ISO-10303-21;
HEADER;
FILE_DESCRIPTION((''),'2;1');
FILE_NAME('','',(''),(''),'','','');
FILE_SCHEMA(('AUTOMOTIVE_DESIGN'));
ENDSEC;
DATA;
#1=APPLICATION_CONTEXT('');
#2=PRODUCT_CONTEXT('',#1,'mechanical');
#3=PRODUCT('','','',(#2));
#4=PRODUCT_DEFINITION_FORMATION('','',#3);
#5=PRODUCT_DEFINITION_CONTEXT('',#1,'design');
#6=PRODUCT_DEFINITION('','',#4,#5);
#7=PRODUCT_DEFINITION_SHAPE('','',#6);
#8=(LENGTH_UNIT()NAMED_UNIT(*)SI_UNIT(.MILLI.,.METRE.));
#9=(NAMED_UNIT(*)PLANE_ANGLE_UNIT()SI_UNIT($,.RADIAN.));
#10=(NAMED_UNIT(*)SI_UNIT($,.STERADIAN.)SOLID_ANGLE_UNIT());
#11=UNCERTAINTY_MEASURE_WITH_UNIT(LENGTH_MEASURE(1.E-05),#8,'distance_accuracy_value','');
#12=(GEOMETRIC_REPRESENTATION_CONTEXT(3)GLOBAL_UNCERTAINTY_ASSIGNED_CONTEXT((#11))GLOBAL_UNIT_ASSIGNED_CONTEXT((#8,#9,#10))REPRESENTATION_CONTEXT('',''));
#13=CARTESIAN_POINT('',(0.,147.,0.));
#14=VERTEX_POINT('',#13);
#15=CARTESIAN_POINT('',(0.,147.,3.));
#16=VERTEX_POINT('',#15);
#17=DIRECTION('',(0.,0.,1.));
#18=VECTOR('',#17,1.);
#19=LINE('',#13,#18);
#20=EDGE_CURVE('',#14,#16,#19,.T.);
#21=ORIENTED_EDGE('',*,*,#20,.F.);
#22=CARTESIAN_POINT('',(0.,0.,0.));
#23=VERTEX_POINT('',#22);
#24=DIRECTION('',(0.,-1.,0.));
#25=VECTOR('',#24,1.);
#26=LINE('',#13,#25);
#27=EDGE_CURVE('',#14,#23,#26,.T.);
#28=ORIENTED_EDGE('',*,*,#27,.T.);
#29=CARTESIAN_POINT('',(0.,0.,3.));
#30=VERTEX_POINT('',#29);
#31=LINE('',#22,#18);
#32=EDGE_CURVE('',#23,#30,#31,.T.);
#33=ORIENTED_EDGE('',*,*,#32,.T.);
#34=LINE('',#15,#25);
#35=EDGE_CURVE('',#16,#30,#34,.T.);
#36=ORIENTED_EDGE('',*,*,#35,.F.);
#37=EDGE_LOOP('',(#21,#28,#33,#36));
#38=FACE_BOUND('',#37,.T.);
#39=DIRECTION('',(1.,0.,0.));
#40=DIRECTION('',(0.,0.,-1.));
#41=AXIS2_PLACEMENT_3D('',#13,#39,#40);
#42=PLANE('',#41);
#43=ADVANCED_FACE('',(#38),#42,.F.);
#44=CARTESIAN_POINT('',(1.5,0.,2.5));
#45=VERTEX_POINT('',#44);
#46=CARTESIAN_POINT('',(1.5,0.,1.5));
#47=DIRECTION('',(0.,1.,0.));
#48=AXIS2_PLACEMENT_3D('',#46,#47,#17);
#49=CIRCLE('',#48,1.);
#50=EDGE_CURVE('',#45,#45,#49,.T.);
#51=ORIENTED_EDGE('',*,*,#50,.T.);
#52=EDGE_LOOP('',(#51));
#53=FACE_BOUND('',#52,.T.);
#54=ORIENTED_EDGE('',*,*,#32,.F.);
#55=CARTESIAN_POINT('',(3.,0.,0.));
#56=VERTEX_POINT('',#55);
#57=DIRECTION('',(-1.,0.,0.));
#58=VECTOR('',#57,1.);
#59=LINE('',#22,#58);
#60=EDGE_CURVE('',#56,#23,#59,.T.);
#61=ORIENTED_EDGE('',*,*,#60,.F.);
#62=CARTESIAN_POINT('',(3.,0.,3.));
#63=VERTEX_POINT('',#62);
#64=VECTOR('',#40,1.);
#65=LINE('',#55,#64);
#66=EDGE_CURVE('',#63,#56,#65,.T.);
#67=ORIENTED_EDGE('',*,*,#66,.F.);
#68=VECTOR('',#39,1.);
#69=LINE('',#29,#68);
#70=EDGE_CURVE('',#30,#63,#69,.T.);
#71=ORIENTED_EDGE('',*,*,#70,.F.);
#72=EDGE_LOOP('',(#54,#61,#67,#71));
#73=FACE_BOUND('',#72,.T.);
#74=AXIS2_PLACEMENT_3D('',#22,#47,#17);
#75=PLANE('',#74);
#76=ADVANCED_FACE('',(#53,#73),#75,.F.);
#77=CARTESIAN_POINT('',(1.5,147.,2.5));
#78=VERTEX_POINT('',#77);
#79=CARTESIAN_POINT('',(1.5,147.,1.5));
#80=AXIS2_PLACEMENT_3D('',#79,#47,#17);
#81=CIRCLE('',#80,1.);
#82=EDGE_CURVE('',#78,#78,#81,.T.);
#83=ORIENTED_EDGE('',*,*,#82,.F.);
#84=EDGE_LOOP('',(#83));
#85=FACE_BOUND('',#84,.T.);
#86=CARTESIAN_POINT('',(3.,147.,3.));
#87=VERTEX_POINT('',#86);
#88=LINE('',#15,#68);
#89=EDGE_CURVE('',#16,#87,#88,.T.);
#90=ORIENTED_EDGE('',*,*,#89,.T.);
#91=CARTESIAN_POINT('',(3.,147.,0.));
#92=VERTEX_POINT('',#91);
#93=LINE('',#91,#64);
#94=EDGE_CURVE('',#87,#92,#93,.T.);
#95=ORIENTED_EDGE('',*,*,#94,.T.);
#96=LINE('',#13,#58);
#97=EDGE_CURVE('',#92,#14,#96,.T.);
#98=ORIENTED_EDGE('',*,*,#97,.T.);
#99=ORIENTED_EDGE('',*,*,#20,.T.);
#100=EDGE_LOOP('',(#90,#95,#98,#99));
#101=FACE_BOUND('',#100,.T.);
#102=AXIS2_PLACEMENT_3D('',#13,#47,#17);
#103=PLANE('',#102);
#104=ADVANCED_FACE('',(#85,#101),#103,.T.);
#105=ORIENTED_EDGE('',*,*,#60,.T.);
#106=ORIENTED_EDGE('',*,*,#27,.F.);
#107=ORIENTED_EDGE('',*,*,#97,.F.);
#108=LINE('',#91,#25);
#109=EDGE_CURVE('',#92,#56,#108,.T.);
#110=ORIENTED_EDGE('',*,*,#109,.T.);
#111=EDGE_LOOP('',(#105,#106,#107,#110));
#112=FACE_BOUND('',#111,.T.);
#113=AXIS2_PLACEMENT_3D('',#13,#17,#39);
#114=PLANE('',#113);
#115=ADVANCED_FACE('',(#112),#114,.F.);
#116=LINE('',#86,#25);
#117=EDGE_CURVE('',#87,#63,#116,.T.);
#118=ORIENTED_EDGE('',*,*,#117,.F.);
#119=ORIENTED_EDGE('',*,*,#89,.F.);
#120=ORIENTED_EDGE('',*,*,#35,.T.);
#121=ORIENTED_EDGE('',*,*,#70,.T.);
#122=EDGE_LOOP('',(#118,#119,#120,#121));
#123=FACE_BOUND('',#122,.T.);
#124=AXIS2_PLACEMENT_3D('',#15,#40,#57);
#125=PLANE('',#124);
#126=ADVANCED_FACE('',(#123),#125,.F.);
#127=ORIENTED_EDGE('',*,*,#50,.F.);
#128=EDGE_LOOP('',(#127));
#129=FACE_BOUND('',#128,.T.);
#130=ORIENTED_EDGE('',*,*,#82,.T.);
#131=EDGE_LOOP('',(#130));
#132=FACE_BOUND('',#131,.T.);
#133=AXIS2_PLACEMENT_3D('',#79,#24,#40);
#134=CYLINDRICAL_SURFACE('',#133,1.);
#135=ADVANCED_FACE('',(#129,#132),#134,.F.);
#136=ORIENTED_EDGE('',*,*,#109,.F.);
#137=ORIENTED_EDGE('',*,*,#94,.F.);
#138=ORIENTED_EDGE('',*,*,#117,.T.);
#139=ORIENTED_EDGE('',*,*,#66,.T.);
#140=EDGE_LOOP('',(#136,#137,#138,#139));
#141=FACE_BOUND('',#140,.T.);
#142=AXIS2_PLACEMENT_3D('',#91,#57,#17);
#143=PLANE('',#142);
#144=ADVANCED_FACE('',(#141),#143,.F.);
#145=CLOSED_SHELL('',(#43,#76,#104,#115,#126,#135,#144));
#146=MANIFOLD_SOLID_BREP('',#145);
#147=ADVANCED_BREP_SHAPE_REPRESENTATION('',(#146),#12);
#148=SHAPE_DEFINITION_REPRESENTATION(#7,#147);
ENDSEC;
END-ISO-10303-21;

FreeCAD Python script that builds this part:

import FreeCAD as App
import Part
import Sketcher
from FreeCAD import Vector
Q = App.Units.Quantity


def add_polygon(sketch, points):
    """Adds a closed chain of lines whose ends are joined by coincident constraints."""
    first, n = sketch.GeometryCount, len(points)
    for a, b in zip(points, points[1:] + points[:1]):
        sketch.addGeometry(Part.LineSegment(App.Vector(*a, 0), App.Vector(*b, 0)), False)
    for i in range(n):
        sketch.addConstraint(Sketcher.Constraint("Coincident", first + i, 2, first + (i + 1) % n, 1))

doc = App.newDocument("Part")
body = doc.addObject("PartDesign::Body", "Body")

sketch1 = body.newObject("Sketcher::SketchObject", "Sketch")
sketch1.AttachmentSupport = (doc.getObject("XZ_Plane"), [""])
sketch1.MapMode = "FlatFace"
add_polygon(sketch1, [(0, 0), (0, 3), (3, 3), (3, 0)])
sketch1.addGeometry(Part.Circle(Vector(1.5, 1.5, 0), Vector(0, 0, 1), 1), False)
sketch1.addConstraint(Sketcher.Constraint("Vertical", 0))
sketch1.addConstraint(Sketcher.Constraint("Horizontal", 1))
sketch1.addConstraint(Sketcher.Constraint("Vertical", 2))
sketch1.addConstraint(Sketcher.Constraint("Horizontal", 3))
sketch1.addConstraint(Sketcher.Constraint("Coincident", 3, 2, -1, 1))
sketch1.addConstraint(Sketcher.Constraint("Equal", 3, 0))
sketch1.addConstraint(Sketcher.Constraint("Diameter", 4, Q("2 mm")))
sketch1.addConstraint(Sketcher.Constraint("DistanceX", 1, 1, 1, 2, Q("3 mm")))
sketch1.addConstraint(Sketcher.Constraint("DistanceX", -1, 1, 4, 3, Q("1.5 mm")))
sketch1.addConstraint(Sketcher.Constraint("DistanceY", -1, 1, 4, 3, Q("1.5 mm")))
pad1 = body.newObject("PartDesign::Pad", "Pad")
pad1.Profile = sketch1
pad1.Length = 147
pad1.Reversed = True

doc.recompute()
